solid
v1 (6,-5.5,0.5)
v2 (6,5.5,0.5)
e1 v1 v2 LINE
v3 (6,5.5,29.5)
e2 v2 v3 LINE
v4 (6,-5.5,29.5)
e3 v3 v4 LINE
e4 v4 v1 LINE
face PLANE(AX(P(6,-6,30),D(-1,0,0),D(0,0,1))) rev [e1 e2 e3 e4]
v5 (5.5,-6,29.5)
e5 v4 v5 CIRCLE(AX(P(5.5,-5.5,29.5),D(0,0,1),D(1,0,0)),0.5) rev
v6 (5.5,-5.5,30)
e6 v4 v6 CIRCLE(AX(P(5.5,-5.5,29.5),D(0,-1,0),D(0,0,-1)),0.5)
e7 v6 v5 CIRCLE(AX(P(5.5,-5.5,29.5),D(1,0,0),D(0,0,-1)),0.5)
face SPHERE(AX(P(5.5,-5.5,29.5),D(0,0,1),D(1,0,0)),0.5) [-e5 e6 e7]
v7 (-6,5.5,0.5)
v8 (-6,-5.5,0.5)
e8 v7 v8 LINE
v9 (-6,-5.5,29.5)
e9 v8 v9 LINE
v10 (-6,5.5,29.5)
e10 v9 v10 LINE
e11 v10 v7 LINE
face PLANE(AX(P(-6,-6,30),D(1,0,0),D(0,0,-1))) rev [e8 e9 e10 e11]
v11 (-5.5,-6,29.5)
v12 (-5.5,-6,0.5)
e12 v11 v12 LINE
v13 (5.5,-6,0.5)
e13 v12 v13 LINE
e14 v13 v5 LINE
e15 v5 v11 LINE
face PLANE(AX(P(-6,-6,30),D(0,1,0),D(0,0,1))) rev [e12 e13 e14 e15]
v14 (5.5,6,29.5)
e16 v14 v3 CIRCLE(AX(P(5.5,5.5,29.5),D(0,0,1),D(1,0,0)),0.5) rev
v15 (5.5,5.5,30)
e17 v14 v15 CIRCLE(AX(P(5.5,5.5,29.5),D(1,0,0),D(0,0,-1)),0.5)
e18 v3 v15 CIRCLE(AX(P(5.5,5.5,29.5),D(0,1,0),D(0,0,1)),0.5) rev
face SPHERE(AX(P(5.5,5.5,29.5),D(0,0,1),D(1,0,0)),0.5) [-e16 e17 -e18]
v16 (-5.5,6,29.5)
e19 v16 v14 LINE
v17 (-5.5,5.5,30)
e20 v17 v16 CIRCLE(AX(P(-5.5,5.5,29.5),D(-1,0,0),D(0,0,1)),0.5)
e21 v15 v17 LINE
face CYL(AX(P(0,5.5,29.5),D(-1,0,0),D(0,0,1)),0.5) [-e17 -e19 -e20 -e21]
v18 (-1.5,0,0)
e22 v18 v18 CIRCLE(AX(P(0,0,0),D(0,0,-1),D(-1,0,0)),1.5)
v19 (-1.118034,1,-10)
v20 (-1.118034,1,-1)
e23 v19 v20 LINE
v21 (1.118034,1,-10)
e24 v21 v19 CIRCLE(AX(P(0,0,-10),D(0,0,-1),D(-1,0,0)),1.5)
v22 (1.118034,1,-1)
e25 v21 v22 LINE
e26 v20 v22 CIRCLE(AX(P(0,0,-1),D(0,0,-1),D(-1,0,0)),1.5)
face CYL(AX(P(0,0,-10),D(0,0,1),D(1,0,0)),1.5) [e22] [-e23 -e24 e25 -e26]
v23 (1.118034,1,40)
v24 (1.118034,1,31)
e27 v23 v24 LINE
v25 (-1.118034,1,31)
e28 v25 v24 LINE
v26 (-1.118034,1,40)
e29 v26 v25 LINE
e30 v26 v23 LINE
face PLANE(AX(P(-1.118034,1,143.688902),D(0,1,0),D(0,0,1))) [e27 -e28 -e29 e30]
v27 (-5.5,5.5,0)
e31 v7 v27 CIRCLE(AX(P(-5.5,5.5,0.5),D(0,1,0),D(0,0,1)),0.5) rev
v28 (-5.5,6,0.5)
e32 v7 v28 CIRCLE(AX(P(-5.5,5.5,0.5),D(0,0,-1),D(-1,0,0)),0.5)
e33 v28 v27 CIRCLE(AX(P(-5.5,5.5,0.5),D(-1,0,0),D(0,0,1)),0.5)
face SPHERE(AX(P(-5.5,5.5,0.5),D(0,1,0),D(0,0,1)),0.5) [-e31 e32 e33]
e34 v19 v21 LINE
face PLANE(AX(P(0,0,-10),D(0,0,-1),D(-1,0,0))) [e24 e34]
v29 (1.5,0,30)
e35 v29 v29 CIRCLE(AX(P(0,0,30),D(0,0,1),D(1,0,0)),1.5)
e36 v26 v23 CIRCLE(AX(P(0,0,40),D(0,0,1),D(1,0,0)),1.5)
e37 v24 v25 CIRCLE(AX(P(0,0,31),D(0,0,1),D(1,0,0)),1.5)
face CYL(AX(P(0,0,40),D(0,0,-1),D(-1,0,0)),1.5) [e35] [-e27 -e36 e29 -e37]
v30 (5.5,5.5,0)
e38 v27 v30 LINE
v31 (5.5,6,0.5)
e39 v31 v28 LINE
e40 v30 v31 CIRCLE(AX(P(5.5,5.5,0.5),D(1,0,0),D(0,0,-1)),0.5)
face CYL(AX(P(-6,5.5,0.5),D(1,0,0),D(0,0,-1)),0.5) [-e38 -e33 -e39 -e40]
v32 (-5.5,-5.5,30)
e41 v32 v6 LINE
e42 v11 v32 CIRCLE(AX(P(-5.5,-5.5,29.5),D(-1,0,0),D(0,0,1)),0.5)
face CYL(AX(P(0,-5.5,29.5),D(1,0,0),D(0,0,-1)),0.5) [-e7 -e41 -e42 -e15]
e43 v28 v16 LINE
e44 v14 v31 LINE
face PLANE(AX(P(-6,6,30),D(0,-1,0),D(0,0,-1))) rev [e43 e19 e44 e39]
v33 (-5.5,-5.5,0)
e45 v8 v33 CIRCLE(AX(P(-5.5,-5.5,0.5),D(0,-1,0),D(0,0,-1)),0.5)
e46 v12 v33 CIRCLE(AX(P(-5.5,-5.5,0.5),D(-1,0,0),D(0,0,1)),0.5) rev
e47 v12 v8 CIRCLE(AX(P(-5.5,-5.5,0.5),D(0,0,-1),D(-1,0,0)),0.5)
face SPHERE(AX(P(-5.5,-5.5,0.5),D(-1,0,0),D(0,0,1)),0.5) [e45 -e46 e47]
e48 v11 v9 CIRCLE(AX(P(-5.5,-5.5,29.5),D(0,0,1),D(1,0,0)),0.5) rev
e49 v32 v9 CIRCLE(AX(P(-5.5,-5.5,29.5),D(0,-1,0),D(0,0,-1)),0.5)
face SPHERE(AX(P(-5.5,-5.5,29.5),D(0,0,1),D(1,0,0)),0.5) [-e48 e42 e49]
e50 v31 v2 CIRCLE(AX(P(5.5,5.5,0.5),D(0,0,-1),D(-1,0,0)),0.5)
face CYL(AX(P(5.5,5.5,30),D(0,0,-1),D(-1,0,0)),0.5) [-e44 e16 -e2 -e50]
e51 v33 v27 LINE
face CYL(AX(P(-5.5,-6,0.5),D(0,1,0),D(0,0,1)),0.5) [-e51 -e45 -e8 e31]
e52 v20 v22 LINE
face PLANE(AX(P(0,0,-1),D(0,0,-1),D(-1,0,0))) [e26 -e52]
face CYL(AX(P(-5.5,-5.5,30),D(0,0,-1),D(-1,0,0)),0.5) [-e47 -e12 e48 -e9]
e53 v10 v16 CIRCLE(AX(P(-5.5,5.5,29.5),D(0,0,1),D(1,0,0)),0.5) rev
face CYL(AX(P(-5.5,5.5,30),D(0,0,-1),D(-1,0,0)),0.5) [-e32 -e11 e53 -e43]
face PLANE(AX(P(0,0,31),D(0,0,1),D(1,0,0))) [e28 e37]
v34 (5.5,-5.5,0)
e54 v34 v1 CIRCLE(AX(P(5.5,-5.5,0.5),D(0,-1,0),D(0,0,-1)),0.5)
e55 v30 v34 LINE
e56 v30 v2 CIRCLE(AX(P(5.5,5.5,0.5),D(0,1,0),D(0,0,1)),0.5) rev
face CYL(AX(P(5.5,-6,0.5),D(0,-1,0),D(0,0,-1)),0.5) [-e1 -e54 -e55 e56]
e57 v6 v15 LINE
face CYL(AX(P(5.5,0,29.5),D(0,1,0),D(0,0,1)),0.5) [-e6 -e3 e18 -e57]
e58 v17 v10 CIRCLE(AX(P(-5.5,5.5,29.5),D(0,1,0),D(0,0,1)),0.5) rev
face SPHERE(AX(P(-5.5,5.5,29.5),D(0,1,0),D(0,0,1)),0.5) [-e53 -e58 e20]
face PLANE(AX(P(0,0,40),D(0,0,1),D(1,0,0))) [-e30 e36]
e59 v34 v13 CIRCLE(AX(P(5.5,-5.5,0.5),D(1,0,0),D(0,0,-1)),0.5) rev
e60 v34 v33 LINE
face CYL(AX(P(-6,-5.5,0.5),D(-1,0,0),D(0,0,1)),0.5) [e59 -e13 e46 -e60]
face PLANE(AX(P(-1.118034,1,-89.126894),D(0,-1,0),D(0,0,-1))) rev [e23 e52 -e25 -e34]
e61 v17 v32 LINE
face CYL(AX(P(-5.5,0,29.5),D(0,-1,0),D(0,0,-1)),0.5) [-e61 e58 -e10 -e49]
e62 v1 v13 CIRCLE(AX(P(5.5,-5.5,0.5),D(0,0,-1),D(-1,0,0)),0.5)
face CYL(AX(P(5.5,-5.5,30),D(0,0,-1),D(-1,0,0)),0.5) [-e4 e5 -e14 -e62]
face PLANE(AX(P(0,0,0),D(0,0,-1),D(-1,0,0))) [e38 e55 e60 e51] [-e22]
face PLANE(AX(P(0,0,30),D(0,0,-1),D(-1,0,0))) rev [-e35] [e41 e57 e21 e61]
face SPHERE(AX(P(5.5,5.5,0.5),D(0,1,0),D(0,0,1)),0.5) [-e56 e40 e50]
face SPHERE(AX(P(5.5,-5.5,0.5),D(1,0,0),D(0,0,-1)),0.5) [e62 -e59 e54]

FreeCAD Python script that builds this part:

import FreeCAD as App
import Part
import Sketcher
Q = App.Units.Quantity


def edges_at(feature, points):
    """Names of the edges that pass closest to the given points."""
    edges = feature.Shape.Edges
    near = lambda p: min(range(len(edges)), key=lambda i: edges[i].distToShape(Part.Vertex(*p))[0])
    return sorted({f"Edge{near(p) + 1}" for p in points})


def add_polygon(sketch, points):
    """Adds a closed chain of lines whose ends are joined by coincident constraints."""
    first, n = sketch.GeometryCount, len(points)
    for a, b in zip(points, points[1:] + points[:1]):
        sketch.addGeometry(Part.LineSegment(App.Vector(*a, 0), App.Vector(*b, 0)), False)
    for i in range(n):
        sketch.addConstraint(Sketcher.Constraint("Coincident", first + i, 2, first + (i + 1) % n, 1))

doc = App.newDocument("Part")
body = doc.addObject("PartDesign::Body", "Body")

sketch1 = body.newObject("Sketcher::SketchObject", "Sketch")
sketch1.AttachmentSupport = (doc.getObject("XY_Plane"), [""])
sketch1.MapMode = "FlatFace"
add_polygon(sketch1, [(-6, 6), (-6, -6), (6, -6), (6, 6)])
sketch1.addConstraint([
    Sketcher.Constraint("Vertical", 0),
    Sketcher.Constraint("Horizontal", 1),
    Sketcher.Constraint("Vertical", 2),
    Sketcher.Constraint("Horizontal", 3),
    Sketcher.Constraint("Symmetric", 0, 2, 2, 2, -1, 1),
    Sketcher.Constraint("Equal", 3, 0),
    Sketcher.Constraint("DistanceX", 1, 1, 1, 2, Q("12 mm")),
])
pad1 = body.newObject("PartDesign::Pad", "Pad")
pad1.Profile = sketch1
pad1.Length = 30

sketch2 = body.newObject("Sketcher::SketchObject", "Sketch001")
sketch2.AttachmentSupport = (doc.getObject("XY_Plane"), [""])
sketch2.MapMode = "FlatFace"
sketch2.AttachmentOffset = App.Placement(App.Vector(0, 0, 30), App.Rotation())
sketch2.addGeometry(Part.Circle(App.Vector(0, 0, 0), App.Vector(0, 0, 1), 1.5), False)
sketch2.addConstraint([
    Sketcher.Constraint("Coincident", 0, 3, -1, 1),
    Sketcher.Constraint("Diameter", 0, Q("3 mm")),
])
pad2 = body.newObject("PartDesign::Pad", "Pad001")
pad2.Profile = sketch2
pad2.Length = 10
doc.recompute()

fillet = body.newObject("PartDesign::Fillet", "Fillet")
fillet.Base = (pad2, edges_at(pad2, [
    (-6, 0, 30),
    (0, -6, 30),
    (6, 0, 30),
    (0, -6, 0),
    (-6, 0, 0),
    (0, 6, 0),
    (6, 0, 0),
    (6, -6, 15),
    (-6, -6, 15),
    (-6, 6, 15),
    (6, 6, 15),
    (0, 6, 30),
]))
fillet.Radius = 0.5

sketch3 = body.newObject("Sketcher::SketchObject", "Sketch002")
sketch3.AttachmentSupport = (doc.getObject("XY_Plane"), [""])
sketch3.MapMode = "FlatFace"
sketch3.AttachmentOffset = App.Placement(App.Vector(0, 0, 40), App.Rotation())
add_polygon(sketch3, [(-31, 1), (31, 1), (31, 61), (-31, 61)])
sketch3.addConstraint([
    Sketcher.Constraint("Horizontal", 0),
    Sketcher.Constraint("Vertical", 1),
    Sketcher.Constraint("Horizontal", 2),
    Sketcher.Constraint("Vertical", 3),
    Sketcher.Constraint("DistanceY", -1, 1, 0, 2, Q("1 mm")),
    Sketcher.Constraint("DistanceX", 0, 1, 0, 2, Q("62.169294 mm")),
    Sketcher.Constraint("DistanceY", 1, 1, 1, 2, Q("59.933226 mm")),
    Sketcher.Constraint("DistanceX", -1, 1, 0, 2, Q("31.084647 mm")),
])
pocket1 = body.newObject("PartDesign::Pocket", "Pocket")
pocket1.Profile = sketch3
pocket1.Type = "TwoLengths"
pocket1.Length = 1
pocket1.Length2 = 9
pocket1.Reversed = True

sketch4 = body.newObject("Sketcher::SketchObject", "Sketch003")
sketch4.AttachmentSupport = (doc.getObject("XY_Plane"), [""])
sketch4.MapMode = "FlatFace"
sketch4.addGeometry(Part.Circle(App.Vector(0, 0, 0), App.Vector(0, 0, 1), 1.5), False)
sketch4.addConstraint([
    Sketcher.Constraint("Coincident", 0, 3, -1, 1),
    Sketcher.Constraint("Diameter", 0, Q("3 mm")),
])
pad3 = body.newObject("PartDesign::Pad", "Pad002")
pad3.Profile = sketch4
pad3.Length = 10
pad3.Reversed = True

sketch5 = body.newObject("Sketcher::SketchObject", "Sketch004")
sketch5.AttachmentSupport = (doc.getObject("XY_Plane"), [""])
sketch5.MapMode = "FlatFace"
sketch5.AttachmentOffset = App.Placement(App.Vector(0, 0, -10), App.Rotation())
add_polygon(sketch5, [(31, 1), (-31, 1), (-31, 61), (31, 61)])
sketch5.addConstraint([
    Sketcher.Constraint("Horizontal", 0),
    Sketcher.Constraint("Vertical", 1),
    Sketcher.Constraint("Horizontal", 2),
    Sketcher.Constraint("Vertical", 3),
    Sketcher.Constraint("DistanceY", -1, 1, 0, 2, Q("1 mm")),
    Sketcher.Constraint("DistanceX", 0, 2, 0, 1, Q("62.169294 mm")),
    Sketcher.Constraint("DistanceY", 1, 1, 1, 2, Q("59.933226 mm")),
    Sketcher.Constraint("DistanceX", 0, 2, -1, 1, Q("31.084647 mm")),
])
pocket2 = body.newObject("PartDesign::Pocket", "Pocket001")
pocket2.Profile = sketch5
pocket2.Type = "TwoLengths"
pocket2.Length = 1
pocket2.Length2 = 9

doc.recompute()
